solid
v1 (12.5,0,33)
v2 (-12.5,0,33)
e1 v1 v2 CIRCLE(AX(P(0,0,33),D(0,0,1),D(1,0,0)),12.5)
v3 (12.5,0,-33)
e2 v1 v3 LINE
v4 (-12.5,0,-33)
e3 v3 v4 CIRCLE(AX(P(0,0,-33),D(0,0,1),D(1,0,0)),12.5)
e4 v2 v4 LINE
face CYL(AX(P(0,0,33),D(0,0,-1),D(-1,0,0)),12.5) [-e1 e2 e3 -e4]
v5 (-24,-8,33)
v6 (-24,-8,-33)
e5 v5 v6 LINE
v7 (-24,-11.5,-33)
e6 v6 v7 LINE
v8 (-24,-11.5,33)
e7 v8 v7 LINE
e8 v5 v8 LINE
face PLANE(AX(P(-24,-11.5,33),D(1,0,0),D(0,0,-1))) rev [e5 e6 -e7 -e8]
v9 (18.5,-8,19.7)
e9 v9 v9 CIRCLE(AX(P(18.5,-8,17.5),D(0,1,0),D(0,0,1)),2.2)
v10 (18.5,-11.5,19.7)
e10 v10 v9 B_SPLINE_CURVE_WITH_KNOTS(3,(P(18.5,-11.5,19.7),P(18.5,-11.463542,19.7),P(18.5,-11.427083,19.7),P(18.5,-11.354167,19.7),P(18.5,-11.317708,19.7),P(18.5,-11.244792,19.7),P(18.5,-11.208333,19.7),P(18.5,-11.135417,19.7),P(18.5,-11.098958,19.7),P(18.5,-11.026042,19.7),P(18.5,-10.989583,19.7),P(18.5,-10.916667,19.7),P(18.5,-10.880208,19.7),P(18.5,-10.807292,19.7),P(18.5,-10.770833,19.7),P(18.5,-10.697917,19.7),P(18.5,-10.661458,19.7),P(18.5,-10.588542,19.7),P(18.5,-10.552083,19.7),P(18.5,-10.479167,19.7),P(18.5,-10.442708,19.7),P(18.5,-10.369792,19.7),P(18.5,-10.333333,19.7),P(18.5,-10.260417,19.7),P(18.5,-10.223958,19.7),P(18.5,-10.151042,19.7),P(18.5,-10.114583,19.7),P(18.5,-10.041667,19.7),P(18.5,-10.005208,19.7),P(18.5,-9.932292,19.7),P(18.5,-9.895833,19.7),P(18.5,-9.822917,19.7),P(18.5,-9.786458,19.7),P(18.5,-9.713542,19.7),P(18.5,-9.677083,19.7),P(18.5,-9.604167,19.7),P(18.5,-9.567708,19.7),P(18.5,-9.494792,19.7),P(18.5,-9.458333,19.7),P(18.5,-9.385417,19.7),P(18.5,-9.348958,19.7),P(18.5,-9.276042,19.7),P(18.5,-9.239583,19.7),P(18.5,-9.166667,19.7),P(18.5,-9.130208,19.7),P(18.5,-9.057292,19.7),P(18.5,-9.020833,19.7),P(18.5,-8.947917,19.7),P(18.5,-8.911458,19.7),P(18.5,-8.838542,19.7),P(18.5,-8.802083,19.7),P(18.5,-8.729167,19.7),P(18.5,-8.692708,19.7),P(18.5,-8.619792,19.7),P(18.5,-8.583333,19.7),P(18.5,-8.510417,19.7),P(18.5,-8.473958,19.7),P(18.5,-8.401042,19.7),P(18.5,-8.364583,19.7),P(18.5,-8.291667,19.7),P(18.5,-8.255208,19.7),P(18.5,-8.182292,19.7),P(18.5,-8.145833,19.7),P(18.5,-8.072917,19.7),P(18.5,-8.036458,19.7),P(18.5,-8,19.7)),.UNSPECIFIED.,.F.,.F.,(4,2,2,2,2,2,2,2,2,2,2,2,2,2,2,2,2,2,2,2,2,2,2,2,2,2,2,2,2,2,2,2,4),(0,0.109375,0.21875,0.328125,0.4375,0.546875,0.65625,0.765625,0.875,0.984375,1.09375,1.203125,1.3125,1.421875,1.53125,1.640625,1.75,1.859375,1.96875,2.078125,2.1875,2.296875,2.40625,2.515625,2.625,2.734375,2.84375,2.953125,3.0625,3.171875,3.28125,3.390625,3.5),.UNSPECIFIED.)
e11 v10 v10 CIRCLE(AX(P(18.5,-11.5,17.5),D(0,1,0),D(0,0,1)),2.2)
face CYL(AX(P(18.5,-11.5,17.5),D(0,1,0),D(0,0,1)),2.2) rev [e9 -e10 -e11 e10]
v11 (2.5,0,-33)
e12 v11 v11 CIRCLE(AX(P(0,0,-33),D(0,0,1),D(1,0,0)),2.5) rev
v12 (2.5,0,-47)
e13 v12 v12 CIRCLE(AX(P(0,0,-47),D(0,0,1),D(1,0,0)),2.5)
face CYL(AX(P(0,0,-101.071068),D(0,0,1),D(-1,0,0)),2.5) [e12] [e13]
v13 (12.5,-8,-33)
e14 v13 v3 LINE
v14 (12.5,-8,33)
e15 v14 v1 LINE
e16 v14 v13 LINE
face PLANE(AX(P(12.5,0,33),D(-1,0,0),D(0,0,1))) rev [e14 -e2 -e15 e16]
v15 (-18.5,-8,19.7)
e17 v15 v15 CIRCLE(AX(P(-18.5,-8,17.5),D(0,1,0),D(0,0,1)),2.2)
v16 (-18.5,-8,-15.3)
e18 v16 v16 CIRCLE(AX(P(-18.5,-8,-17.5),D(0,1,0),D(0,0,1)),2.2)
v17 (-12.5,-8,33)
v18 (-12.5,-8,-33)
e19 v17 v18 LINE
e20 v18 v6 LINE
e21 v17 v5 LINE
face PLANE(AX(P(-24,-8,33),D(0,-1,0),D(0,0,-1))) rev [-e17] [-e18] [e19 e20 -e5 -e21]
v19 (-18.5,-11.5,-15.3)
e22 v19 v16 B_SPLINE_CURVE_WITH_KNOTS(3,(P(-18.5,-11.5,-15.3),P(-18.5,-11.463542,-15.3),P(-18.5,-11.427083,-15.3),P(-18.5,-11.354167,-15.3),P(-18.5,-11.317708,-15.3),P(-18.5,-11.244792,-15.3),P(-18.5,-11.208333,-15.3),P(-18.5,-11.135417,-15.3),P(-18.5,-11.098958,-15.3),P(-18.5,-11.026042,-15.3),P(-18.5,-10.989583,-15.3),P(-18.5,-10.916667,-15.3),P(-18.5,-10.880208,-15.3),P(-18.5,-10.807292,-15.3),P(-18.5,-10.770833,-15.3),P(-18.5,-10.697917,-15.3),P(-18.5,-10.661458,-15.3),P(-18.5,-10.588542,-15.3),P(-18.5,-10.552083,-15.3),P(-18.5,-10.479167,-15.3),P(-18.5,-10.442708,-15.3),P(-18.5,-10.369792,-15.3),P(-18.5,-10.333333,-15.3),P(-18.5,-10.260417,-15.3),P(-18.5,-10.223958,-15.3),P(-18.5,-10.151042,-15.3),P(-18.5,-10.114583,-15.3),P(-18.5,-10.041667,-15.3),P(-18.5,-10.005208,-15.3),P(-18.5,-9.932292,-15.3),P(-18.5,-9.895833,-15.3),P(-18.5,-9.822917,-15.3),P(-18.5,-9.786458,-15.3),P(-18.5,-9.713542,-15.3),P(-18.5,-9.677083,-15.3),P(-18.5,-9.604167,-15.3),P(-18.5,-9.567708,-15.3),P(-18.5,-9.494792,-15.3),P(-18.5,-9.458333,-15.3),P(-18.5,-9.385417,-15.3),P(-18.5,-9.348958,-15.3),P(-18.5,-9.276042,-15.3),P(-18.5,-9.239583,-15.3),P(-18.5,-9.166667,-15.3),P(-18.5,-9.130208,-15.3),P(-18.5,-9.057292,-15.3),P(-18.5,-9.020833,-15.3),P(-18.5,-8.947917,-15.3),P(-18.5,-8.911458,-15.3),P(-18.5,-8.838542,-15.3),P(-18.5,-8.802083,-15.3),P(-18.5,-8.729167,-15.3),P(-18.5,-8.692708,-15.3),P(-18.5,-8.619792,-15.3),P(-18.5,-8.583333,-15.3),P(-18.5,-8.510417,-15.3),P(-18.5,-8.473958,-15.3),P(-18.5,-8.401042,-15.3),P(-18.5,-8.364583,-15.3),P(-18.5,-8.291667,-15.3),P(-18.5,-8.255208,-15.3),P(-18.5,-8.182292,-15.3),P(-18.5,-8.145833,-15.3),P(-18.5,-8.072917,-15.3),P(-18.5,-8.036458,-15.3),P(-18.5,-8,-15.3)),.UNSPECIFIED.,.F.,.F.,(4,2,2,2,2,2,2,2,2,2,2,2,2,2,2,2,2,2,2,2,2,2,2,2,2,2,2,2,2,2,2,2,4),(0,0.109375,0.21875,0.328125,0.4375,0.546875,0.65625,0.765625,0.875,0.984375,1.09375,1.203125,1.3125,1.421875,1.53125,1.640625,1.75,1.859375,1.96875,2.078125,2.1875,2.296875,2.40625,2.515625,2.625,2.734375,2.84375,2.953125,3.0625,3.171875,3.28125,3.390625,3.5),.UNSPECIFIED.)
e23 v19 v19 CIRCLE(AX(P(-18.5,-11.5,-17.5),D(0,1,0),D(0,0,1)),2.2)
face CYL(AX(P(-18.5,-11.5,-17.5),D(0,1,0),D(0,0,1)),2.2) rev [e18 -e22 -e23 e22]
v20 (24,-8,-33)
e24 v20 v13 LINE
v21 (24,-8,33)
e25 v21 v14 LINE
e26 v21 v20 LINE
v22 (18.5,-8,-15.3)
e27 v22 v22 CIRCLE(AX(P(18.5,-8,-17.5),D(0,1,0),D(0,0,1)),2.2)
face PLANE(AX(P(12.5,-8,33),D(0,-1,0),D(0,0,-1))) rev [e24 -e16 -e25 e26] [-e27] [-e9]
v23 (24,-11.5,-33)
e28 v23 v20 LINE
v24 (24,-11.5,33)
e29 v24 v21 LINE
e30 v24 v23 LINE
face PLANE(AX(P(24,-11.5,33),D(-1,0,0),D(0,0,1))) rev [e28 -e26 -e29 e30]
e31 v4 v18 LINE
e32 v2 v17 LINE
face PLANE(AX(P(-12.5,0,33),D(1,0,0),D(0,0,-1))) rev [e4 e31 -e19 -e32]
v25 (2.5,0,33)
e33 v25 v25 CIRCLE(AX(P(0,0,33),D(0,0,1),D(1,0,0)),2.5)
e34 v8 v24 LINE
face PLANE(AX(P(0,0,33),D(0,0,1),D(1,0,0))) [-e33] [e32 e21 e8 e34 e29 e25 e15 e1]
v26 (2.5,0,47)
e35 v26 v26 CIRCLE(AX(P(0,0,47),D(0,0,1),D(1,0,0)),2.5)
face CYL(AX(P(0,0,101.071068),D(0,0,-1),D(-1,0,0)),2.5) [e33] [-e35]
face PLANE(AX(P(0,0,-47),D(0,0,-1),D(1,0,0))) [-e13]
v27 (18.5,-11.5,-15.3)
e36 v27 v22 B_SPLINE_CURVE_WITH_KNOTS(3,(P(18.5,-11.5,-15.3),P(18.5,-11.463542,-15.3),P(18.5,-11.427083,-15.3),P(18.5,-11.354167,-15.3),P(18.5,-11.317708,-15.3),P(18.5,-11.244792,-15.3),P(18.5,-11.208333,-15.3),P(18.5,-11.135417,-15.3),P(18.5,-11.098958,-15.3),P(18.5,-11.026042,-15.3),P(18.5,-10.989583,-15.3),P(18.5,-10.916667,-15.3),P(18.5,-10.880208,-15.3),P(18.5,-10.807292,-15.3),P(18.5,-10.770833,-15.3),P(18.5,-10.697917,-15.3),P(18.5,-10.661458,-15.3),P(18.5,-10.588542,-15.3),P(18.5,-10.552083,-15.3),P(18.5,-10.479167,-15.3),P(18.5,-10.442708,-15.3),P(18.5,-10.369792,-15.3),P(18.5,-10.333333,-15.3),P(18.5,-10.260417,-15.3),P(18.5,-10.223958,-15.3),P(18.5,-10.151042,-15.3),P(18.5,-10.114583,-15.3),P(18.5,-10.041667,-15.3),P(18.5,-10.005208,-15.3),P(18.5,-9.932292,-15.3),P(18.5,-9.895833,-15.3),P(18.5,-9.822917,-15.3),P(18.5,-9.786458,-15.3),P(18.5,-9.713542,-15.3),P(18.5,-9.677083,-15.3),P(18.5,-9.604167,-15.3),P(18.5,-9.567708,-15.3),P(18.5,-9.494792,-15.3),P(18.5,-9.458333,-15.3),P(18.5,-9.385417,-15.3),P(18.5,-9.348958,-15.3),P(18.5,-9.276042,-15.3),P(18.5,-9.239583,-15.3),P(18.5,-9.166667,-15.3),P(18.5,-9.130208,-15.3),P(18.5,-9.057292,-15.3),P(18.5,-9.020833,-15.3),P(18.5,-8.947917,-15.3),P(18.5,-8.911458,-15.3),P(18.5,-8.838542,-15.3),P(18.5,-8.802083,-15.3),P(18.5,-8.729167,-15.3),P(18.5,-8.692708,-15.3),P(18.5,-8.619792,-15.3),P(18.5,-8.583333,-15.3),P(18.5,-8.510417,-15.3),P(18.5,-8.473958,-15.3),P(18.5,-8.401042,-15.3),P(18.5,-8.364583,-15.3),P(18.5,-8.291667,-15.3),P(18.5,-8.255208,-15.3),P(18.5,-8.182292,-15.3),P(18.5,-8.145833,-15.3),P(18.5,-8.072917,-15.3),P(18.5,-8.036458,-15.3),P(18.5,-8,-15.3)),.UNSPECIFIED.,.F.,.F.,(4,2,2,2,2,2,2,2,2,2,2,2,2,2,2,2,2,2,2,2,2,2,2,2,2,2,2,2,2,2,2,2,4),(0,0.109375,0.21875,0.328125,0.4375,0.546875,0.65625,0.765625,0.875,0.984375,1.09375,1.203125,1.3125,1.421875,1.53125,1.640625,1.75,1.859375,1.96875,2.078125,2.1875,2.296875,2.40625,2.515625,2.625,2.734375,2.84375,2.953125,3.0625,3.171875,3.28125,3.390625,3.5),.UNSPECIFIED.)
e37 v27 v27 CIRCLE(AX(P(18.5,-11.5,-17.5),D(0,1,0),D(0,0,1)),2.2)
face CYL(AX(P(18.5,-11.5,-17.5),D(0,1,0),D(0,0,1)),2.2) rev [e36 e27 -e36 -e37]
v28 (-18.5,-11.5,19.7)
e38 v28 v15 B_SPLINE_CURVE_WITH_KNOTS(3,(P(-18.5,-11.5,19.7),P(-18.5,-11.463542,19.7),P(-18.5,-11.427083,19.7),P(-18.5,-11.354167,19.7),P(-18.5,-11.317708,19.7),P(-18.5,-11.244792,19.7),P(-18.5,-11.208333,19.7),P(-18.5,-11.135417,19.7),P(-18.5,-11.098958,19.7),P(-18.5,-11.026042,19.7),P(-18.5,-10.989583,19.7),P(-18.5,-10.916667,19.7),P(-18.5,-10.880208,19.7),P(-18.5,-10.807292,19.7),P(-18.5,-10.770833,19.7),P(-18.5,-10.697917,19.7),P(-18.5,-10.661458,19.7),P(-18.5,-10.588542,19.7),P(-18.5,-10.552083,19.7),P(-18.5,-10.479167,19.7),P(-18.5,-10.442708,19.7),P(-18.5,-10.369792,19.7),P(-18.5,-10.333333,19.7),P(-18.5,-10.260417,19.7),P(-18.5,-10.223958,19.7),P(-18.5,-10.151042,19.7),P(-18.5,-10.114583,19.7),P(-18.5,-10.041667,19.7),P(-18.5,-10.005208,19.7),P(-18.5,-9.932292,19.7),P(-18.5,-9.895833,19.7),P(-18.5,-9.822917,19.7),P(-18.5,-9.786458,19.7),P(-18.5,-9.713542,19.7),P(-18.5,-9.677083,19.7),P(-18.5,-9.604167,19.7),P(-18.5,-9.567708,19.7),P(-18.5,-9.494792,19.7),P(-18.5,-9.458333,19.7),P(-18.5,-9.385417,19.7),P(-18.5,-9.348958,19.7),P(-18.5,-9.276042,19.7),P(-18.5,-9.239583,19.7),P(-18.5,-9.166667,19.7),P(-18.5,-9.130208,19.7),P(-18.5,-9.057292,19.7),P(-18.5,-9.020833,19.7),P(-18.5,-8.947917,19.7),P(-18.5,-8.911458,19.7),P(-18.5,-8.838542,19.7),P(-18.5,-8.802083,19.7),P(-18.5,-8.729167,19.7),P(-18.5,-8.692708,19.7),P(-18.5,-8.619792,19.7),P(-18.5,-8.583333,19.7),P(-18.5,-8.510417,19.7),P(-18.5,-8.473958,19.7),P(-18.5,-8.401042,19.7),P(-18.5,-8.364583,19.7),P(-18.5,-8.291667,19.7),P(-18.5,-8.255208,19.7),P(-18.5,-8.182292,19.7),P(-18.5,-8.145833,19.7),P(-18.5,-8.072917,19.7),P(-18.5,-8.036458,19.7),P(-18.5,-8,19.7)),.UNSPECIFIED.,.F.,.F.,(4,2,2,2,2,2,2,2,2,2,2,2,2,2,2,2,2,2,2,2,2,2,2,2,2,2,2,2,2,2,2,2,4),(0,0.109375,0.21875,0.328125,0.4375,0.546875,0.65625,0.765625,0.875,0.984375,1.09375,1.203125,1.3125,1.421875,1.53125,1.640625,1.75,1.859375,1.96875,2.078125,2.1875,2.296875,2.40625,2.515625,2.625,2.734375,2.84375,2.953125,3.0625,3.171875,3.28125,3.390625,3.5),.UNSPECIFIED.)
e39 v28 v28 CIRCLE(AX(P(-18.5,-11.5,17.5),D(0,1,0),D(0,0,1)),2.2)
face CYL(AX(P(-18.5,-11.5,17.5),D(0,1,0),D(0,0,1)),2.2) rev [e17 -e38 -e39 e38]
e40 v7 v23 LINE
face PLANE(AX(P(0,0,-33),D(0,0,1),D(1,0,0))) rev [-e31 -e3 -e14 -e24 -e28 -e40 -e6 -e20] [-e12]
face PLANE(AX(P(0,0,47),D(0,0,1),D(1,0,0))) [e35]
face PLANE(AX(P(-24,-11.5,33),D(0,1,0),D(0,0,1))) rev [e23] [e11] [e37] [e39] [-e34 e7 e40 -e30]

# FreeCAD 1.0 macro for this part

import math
import FreeCAD as App
import Part
import Sketcher

V = App.Vector

doc = App.newDocument("Part")
params = doc.addObject("Spreadsheet::Sheet", "Params")
for row, (alias, value) in enumerate([
    ("sketch1_radius", "12.5 mm"),
    ("sketch1_width", "48 mm"),
    ("sketch1_height", "8 mm"),
    ("sketch1_height2", "3.5 mm"),
    ("pad1_length", "66 mm"),
    ("sketch2_diameter", "4.4 mm"),
    ("sketch3_diameter", "5 mm"),
    ("pad2_length", "14 mm"),
], start=1):
    params.set(f"A{row}", alias)
    params.set(f"B{row}", "=" + value)
    params.setAlias(f"B{row}", alias)

body = doc.addObject("PartDesign::Body", "Body")

# Sketch on XY plane
sketch1 = body.newObject("Sketcher::SketchObject", "Sketch")
sketch1.AttachmentSupport = (doc.getObject("XY_Plane"), [""])
sketch1.MapMode = "FlatFace"
sketch1.addGeometry([
    Part.LineSegment(V(24, -8, 0), V(12.5, -8, 0)),  # 0
    Part.LineSegment(V(12.5, -8, 0), V(12.5, 0, 0)),  # 1
    Part.ArcOfCircle(Part.Circle(V(0, 0, 0), V(0, 0, 1), 12.5), math.radians(0), math.radians(180)),  # 2
    Part.LineSegment(V(-12.5, 0, 0), V(-12.5, -8, 0)),  # 3
    Part.LineSegment(V(-12.5, -8, 0), V(-24, -8, 0)),  # 4
    Part.LineSegment(V(-24, -8, 0), V(-24, -11.5, 0)),  # 5
    Part.LineSegment(V(-24, -11.5, 0), V(24, -11.5, 0)),  # 6
    Part.LineSegment(V(24, -11.5, 0), V(24, -8, 0)),  # 7
], False)
sketch1.addConstraint([
    Sketcher.Constraint("Coincident", 0, 2, 1, 1),
    Sketcher.Constraint("Tangent", 1, 2, 2, 1),
    Sketcher.Constraint("Tangent", 2, 2, 3, 1),
    Sketcher.Constraint("Coincident", 3, 2, 4, 1),
    Sketcher.Constraint("Coincident", 4, 2, 5, 1),
    Sketcher.Constraint("Coincident", 5, 2, 6, 1),
    Sketcher.Constraint("Coincident", 6, 2, 7, 1),
    Sketcher.Constraint("Coincident", 7, 2, 0, 1),
    Sketcher.Constraint("Horizontal", 0),
    Sketcher.Constraint("Vertical", 1),
    Sketcher.Constraint("Vertical", 3),
    Sketcher.Constraint("Horizontal", 4),
    Sketcher.Constraint("Vertical", 5),
    Sketcher.Constraint("Horizontal", 6),
    Sketcher.Constraint("Vertical", 7),
    Sketcher.Constraint("Coincident", 2, 3, -1, 1),
    Sketcher.Constraint("Symmetric", 4, 2, 7, 2, -2),
    Sketcher.Constraint("Radius", 2, 12.5),
    Sketcher.Constraint("DistanceX", 6, 1, 6, 2, 48.0),
    Sketcher.Constraint("DistanceY", 1, 1, 1, 2, 8.0),
    Sketcher.Constraint("DistanceY", 5, 2, 5, 1, 3.5),
])
sketch1.setExpression("Constraints[17]", "Params.sketch1_radius")
sketch1.setExpression("Constraints[18]", "Params.sketch1_width")
sketch1.setExpression("Constraints[19]", "Params.sketch1_height")
sketch1.setExpression("Constraints[20]", "Params.sketch1_height2")
pad1 = body.newObject("PartDesign::Pad", "Pad")
pad1.Profile = sketch1
pad1.setExpression("Length", "Params.pad1_length")
pad1.Midplane = True

# Sketch on XZ plane
sketch2 = body.newObject("Sketcher::SketchObject", "Sketch001")
sketch2.AttachmentSupport = (doc.getObject("XZ_Plane"), [""])
sketch2.MapMode = "FlatFace"
sketch2.AttachmentOffset = App.Placement(V(0, 0, 8), App.Rotation())
sketch2.addGeometry([
    Part.Circle(V(-18.5, -17.5, 0), V(0, 0, 1), 2.2),
    Part.Circle(V(-18.5, 17.5, 0), V(0, 0, 1), 2.2),
    Part.Circle(V(18.5, 17.5, 0), V(0, 0, 1), 2.2),
    Part.Circle(V(18.5, -17.5, 0), V(0, 0, 1), 2.2),
], False)
sketch2.addConstraint([
    Sketcher.Constraint("Equal", 0, 1),
    Sketcher.Constraint("Equal", 1, 2),
    Sketcher.Constraint("Equal", 2, 3),
    Sketcher.Constraint("Symmetric", 0, 3, 2, 3, -1, 1),
    Sketcher.Constraint("Symmetric", 1, 3, 3, 3, -1, 1),
    Sketcher.Constraint("Symmetric", 1, 3, 2, 3, -2),
    Sketcher.Constraint("Diameter", 0, 4.4),
    Sketcher.Constraint("DistanceY", 0, 3, 1, 3, 35.0),
    Sketcher.Constraint("DistanceX", 1, 3, 2, 3, 37.0),
])
sketch2.setExpression("Constraints[6]", "Params.sketch2_diameter")
pocket1 = body.newObject("PartDesign::Pocket", "Pocket")
pocket1.Profile = sketch2
pocket1.Type = "ThroughAll"
pocket1.Reversed = True

# Sketch on XY plane
sketch3 = body.newObject("Sketcher::SketchObject", "Sketch002")
sketch3.AttachmentSupport = (doc.getObject("XY_Plane"), [""])
sketch3.MapMode = "FlatFace"
sketch3.AttachmentOffset = App.Placement(V(0, 0, 33), App.Rotation())
sketch3.addGeometry(Part.Circle(V(0, 0, 0), V(0, 0, 1), 2.5), False)
sketch3.addConstraint([
    Sketcher.Constraint("Coincident", 0, 3, -1, 1),
    Sketcher.Constraint("Diameter", 0, 5.0),
])
sketch3.setExpression("Constraints[1]", "Params.sketch3_diameter")
pad2 = body.newObject("PartDesign::Pad", "Pad001")
pad2.Profile = sketch3
pad2.setExpression("Length", "Params.pad2_length")
doc.recompute()

mirrored = body.newObject("PartDesign::Mirrored", "Mirrored")
mirrored.Originals = [pad2]
mirrored.MirrorPlane = (doc.getObject("XY_Plane"), [""])
body.Tip = mirrored

doc.recompute()
